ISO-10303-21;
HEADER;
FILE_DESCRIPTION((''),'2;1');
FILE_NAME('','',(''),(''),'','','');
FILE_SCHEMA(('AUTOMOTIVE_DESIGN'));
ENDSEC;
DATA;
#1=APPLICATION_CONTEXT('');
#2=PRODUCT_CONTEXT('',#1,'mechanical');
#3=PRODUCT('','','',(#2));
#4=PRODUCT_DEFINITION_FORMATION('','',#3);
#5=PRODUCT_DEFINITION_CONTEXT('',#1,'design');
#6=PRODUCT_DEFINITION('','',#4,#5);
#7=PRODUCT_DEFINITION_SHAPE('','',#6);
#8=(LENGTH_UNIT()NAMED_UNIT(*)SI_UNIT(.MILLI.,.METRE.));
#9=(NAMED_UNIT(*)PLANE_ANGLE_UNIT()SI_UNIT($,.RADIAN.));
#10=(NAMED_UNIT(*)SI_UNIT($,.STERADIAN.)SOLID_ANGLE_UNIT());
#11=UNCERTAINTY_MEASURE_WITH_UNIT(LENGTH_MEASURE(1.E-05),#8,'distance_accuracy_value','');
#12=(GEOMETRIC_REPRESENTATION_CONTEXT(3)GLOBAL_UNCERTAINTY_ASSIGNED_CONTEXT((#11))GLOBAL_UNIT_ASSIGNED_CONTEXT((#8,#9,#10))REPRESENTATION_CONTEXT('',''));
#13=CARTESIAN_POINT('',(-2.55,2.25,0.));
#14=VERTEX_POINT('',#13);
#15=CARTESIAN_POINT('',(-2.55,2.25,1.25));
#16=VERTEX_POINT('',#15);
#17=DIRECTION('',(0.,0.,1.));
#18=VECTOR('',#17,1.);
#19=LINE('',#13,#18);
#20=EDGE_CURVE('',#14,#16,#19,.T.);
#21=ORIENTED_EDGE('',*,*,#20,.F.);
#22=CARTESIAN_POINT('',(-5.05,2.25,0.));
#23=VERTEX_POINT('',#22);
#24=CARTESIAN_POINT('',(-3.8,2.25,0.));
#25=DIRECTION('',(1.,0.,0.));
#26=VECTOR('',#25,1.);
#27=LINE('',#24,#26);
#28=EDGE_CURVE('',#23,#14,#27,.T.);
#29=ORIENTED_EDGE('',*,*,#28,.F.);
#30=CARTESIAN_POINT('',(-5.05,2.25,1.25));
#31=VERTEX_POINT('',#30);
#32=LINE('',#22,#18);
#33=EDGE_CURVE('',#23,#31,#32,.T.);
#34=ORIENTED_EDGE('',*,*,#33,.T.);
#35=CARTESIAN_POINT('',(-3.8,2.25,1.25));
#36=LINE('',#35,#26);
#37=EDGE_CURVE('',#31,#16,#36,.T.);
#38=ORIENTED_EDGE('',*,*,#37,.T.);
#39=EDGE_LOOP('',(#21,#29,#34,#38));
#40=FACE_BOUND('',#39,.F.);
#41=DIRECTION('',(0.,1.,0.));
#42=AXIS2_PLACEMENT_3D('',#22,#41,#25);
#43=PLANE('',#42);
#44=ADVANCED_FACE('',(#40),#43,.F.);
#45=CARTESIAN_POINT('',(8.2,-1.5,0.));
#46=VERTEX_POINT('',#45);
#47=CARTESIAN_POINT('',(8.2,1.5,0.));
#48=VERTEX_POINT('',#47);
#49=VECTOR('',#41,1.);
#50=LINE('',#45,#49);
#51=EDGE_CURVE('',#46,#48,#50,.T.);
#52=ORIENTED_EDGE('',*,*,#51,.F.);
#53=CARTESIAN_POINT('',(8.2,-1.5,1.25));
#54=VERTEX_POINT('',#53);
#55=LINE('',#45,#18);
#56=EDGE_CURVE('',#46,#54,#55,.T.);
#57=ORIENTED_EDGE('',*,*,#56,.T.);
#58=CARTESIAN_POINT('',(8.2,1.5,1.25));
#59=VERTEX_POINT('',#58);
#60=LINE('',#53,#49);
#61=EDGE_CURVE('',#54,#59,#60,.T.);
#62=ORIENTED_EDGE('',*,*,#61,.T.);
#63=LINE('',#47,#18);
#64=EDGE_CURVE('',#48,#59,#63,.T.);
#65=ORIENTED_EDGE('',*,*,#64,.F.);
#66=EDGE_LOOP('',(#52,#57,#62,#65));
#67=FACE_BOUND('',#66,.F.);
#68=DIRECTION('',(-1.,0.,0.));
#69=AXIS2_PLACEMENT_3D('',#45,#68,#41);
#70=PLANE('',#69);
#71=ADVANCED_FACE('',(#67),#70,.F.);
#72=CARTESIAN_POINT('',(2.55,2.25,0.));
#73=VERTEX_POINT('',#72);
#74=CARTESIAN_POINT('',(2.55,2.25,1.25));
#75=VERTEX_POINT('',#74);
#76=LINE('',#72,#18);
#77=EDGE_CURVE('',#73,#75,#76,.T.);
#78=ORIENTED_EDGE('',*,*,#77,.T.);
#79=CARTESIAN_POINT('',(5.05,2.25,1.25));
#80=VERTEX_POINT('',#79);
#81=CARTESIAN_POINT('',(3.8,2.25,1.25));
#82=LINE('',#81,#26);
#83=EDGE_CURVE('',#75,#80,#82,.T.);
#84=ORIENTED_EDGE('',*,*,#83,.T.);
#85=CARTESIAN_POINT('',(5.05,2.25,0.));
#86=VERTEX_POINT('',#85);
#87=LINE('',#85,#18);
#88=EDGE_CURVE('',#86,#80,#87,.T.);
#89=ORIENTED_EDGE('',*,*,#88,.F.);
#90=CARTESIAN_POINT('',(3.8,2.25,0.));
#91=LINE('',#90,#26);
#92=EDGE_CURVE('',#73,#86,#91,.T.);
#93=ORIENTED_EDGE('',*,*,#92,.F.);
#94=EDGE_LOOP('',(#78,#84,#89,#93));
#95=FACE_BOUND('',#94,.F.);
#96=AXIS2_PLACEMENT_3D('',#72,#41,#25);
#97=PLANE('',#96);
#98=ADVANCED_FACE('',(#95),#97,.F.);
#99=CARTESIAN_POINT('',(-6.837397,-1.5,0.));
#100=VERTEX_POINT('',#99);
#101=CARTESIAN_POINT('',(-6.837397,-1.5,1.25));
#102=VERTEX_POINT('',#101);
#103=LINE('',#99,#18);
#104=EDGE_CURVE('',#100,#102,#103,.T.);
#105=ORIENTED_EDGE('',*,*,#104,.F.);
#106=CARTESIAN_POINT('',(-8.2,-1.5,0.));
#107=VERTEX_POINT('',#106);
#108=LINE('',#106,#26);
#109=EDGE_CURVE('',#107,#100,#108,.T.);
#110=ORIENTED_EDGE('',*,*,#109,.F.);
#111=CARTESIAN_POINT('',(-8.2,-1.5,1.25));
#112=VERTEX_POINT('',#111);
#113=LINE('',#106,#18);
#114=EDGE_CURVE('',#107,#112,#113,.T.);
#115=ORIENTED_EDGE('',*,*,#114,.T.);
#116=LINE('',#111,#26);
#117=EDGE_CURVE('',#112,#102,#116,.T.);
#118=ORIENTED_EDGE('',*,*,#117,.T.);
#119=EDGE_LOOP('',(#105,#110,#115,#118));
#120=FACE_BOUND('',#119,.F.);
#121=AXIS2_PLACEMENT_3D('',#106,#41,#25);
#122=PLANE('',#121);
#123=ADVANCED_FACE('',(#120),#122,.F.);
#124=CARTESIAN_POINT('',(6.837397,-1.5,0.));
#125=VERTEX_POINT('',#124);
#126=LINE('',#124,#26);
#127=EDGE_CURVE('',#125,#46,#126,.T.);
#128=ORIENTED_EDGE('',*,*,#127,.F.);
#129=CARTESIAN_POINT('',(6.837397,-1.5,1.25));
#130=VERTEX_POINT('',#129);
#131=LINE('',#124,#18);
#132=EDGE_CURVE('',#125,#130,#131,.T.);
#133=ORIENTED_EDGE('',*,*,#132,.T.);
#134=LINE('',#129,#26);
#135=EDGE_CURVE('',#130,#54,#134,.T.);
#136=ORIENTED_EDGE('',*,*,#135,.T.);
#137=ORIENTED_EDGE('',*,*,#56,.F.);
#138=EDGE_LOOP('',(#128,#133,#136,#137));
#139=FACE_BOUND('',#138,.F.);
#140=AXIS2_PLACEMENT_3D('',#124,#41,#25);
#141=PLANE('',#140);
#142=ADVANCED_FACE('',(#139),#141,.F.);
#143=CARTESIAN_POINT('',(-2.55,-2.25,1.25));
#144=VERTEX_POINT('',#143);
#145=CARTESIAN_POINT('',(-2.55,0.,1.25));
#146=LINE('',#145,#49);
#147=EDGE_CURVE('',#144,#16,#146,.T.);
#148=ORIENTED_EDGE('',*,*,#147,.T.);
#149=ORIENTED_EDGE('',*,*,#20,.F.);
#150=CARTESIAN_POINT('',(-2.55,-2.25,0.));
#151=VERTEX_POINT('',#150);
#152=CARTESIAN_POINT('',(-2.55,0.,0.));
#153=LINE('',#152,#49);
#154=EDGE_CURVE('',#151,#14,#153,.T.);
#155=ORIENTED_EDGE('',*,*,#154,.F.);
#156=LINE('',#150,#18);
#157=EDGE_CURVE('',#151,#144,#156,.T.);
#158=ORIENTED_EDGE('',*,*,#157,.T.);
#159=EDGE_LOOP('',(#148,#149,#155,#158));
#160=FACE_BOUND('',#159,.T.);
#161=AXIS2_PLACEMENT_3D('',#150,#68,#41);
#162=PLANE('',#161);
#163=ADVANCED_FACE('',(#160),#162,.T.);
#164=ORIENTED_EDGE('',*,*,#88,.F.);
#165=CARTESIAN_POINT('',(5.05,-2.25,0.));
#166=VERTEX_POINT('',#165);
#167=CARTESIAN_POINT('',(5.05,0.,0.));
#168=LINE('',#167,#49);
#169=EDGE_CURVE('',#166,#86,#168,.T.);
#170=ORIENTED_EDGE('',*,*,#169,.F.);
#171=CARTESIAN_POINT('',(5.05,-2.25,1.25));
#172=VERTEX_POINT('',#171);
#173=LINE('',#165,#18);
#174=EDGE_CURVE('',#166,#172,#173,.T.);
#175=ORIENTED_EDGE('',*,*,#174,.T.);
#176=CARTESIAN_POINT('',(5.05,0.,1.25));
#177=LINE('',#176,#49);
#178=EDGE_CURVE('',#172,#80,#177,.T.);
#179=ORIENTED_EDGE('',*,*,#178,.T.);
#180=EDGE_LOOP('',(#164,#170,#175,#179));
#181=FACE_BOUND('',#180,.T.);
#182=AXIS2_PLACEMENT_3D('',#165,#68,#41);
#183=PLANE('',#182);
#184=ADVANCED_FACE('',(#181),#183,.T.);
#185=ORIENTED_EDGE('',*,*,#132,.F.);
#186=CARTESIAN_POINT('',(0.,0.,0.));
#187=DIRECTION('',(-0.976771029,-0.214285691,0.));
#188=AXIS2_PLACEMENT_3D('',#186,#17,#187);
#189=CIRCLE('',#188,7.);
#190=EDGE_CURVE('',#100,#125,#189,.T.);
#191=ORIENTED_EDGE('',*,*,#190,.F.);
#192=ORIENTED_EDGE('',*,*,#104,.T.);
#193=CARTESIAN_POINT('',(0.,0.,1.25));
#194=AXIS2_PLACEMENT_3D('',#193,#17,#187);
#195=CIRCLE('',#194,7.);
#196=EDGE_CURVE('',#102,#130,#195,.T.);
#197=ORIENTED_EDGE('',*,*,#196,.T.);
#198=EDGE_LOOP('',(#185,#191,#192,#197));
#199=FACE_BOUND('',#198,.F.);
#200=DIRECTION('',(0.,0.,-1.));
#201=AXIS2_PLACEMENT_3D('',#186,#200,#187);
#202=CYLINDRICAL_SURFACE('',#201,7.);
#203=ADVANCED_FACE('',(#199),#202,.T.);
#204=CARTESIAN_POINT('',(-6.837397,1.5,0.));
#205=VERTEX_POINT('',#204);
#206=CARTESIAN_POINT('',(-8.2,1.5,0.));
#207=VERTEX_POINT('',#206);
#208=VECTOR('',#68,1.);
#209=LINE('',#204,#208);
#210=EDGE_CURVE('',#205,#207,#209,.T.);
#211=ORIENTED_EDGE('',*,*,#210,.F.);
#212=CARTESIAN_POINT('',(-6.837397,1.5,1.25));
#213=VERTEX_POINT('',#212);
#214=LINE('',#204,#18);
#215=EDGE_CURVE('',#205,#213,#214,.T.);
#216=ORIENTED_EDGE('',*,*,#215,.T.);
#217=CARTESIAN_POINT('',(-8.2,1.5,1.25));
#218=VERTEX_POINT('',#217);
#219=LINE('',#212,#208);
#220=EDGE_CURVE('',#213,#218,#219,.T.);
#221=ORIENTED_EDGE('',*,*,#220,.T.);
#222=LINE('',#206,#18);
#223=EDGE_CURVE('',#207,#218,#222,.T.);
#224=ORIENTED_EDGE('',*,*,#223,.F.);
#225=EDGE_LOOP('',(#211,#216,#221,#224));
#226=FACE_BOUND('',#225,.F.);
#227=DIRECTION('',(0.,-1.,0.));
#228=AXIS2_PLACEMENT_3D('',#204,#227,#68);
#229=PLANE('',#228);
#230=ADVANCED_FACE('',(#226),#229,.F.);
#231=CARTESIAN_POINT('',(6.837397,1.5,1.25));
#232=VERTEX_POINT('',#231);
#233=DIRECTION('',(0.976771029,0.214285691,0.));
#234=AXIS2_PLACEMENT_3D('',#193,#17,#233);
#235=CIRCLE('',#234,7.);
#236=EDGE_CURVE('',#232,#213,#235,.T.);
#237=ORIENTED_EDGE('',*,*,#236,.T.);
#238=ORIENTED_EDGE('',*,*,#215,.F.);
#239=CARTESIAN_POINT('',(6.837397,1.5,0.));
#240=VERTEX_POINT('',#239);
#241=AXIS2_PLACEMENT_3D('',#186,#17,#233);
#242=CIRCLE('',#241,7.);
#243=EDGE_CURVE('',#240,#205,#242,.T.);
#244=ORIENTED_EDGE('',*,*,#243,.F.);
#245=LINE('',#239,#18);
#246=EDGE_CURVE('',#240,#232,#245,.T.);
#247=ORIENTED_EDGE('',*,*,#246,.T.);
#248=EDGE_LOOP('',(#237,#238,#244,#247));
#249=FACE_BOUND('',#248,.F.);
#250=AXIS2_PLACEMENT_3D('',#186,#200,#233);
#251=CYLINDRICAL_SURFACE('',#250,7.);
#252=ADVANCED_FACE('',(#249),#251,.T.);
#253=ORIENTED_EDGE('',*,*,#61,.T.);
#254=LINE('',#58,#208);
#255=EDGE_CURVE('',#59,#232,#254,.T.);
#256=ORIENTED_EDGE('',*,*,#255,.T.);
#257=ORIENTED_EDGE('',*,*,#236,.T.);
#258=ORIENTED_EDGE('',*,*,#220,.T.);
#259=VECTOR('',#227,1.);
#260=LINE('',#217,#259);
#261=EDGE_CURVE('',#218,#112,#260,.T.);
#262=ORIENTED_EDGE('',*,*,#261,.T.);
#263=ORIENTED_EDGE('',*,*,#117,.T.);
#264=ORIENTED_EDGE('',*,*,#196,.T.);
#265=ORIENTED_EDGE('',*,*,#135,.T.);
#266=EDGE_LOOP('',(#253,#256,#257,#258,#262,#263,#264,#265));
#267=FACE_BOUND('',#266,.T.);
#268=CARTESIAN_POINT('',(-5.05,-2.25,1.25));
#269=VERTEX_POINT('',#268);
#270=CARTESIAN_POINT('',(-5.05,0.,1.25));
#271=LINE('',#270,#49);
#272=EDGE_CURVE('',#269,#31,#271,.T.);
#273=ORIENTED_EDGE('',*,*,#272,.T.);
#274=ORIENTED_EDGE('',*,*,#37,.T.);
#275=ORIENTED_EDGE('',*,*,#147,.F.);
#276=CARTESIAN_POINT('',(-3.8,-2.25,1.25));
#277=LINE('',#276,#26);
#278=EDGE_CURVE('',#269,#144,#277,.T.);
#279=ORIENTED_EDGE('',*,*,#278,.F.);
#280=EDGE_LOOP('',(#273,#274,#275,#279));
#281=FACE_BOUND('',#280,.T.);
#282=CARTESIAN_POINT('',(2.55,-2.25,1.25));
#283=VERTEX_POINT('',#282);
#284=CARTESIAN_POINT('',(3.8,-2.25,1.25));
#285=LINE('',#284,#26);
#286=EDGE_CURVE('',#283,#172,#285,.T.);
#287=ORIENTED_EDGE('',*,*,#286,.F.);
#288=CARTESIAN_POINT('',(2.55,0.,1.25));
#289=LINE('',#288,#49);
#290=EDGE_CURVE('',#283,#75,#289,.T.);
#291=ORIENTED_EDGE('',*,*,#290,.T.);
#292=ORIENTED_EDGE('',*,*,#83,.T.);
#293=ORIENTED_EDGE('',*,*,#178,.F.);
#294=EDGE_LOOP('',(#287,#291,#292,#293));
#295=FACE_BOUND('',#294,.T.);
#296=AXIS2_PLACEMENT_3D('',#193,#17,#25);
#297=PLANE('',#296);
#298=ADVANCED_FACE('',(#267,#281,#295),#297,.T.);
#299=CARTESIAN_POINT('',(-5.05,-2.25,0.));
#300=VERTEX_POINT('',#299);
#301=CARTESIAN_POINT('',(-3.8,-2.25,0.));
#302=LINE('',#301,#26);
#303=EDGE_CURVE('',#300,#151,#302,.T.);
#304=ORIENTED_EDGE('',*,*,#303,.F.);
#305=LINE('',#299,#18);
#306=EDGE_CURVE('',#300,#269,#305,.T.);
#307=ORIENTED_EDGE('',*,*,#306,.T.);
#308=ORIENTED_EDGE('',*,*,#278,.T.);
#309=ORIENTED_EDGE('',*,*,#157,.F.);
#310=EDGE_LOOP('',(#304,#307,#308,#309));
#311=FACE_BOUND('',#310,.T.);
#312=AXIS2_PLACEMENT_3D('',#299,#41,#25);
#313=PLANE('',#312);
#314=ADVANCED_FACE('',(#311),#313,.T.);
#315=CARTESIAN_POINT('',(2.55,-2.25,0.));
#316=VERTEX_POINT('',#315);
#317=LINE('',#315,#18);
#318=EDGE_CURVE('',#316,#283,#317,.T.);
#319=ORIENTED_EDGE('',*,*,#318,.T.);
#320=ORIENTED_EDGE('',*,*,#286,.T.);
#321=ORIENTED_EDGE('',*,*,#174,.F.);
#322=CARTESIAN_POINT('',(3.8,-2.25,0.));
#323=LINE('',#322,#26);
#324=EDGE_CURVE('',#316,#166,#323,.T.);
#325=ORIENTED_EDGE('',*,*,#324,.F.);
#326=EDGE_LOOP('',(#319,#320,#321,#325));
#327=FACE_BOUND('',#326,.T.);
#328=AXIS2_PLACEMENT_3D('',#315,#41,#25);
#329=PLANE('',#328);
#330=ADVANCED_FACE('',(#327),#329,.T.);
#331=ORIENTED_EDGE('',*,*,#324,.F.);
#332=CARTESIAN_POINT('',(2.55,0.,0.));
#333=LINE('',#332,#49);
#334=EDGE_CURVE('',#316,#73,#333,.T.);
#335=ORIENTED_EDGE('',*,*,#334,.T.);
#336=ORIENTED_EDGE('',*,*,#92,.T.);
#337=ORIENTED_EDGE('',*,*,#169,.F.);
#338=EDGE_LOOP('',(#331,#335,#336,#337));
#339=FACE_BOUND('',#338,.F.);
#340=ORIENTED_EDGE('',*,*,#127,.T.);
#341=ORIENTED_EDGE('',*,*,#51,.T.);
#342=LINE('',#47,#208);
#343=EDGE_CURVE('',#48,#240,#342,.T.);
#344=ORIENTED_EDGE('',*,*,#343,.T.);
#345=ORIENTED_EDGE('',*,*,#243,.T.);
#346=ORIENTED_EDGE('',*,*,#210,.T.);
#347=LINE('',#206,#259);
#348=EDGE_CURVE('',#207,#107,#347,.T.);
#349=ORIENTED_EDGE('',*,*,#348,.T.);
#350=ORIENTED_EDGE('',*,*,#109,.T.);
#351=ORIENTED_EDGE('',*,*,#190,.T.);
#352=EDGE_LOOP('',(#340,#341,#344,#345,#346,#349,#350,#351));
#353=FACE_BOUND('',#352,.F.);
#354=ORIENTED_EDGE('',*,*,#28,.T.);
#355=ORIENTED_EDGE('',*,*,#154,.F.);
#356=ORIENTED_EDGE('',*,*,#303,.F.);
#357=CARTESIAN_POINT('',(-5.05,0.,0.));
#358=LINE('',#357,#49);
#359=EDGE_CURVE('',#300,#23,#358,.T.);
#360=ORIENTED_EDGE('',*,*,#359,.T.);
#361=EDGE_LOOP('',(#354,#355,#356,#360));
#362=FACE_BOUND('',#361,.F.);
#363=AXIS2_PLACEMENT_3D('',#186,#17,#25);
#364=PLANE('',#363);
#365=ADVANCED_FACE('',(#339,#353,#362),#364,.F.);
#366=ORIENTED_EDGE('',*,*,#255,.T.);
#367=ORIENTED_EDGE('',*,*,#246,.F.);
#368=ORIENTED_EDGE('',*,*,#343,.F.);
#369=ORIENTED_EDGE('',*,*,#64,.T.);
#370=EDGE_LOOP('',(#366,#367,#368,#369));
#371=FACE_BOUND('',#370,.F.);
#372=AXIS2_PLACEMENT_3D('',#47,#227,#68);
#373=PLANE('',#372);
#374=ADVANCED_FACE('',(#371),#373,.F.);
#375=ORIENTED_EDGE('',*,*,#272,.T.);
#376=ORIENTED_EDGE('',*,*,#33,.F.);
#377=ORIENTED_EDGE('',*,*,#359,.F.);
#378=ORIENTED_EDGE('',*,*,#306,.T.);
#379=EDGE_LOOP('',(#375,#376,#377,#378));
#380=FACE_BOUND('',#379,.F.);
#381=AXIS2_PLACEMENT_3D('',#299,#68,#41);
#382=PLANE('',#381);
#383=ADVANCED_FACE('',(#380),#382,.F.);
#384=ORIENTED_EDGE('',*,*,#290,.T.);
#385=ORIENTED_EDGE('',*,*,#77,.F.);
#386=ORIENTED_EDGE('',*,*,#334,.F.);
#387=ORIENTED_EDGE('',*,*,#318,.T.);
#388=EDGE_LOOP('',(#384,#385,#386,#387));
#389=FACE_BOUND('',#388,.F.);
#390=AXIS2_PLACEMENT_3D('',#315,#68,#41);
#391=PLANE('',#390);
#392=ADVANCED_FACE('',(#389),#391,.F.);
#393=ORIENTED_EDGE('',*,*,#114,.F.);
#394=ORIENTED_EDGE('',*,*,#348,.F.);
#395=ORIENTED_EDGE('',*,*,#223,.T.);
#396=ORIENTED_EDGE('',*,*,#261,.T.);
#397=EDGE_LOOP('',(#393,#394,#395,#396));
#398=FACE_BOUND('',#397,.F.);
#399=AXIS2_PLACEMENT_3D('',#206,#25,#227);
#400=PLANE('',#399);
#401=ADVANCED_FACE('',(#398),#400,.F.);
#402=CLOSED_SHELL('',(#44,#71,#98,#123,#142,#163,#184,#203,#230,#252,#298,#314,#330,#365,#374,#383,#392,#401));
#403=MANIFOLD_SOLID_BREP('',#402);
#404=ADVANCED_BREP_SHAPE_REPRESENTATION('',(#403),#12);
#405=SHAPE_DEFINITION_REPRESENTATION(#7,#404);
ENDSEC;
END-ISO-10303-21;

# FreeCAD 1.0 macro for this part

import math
import FreeCAD as App
import Part
import Sketcher
Q = App.Units.Quantity

doc = App.newDocument("Part")
body = doc.addObject("PartDesign::Body", "Body")

# Sketch on XY plane
sketch1 = doc.addObject("Sketcher::SketchObject", "Sketch")
body.addObject(sketch1)
sketch1.AttachmentSupport = (doc.XY_Plane, [""])
sketch1.MapMode = "FlatFace"
sketch1.addGeometry([
    Part.LineSegment(App.Vector(8.2, 1.5, 0), App.Vector(6.8, 1.5, 0)),  # 0
    Part.ArcOfCircle(Part.Circle(App.Vector(0, 0, 0), App.Vector(0, 0, 1), 7), math.radians(12), math.radians(168)),  # 1
    Part.LineSegment(App.Vector(-6.8, 1.5, 0), App.Vector(-8.2, 1.5, 0)),  # 2
    Part.LineSegment(App.Vector(-8.2, 1.5, 0), App.Vector(-8.2, -1.5, 0)),  # 3
    Part.LineSegment(App.Vector(-8.2, -1.5, 0), App.Vector(-6.8, -1.5, 0)),  # 4
    Part.ArcOfCircle(Part.Circle(App.Vector(0, 0, 0), App.Vector(0, 0, 1), 7), math.radians(-168), math.radians(-12)),  # 5
    Part.LineSegment(App.Vector(6.8, -1.5, 0), App.Vector(8.2, -1.5, 0)),  # 6
    Part.LineSegment(App.Vector(8.2, -1.5, 0), App.Vector(8.2, 1.5, 0)),  # 7
    Part.LineSegment(App.Vector(-2.5, -2.2, 0), App.Vector(-5, -2.2, 0)),  # 8
    Part.LineSegment(App.Vector(-5, -2.2, 0), App.Vector(-5, 2.2, 0)),  # 9
    Part.LineSegment(App.Vector(-5, 2.2, 0), App.Vector(-2.5, 2.2, 0)),  # 10
    Part.LineSegment(App.Vector(-2.5, 2.2, 0), App.Vector(-2.5, -2.2, 0)),  # 11
    Part.LineSegment(App.Vector(5, -2.2, 0), App.Vector(2.5, -2.2, 0)),  # 12
    Part.LineSegment(App.Vector(2.5, -2.2, 0), App.Vector(2.5, 2.2, 0)),  # 13
    Part.LineSegment(App.Vector(2.5, 2.2, 0), App.Vector(5, 2.2, 0)),  # 14
    Part.LineSegment(App.Vector(5, 2.2, 0), App.Vector(5, -2.2, 0)),  # 15
], False)
sketch1.addConstraint([
    Sketcher.Constraint("Coincident", 0, 2, 1, 1),
    Sketcher.Constraint("Coincident", 1, 2, 2, 1),
    Sketcher.Constraint("Coincident", 2, 2, 3, 1),
    Sketcher.Constraint("Coincident", 3, 2, 4, 1),
    Sketcher.Constraint("Coincident", 4, 2, 5, 1),
    Sketcher.Constraint("Coincident", 5, 2, 6, 1),
    Sketcher.Constraint("Coincident", 6, 2, 7, 1),
    Sketcher.Constraint("Coincident", 7, 2, 0, 1),
    Sketcher.Constraint("Coincident", 8, 2, 9, 1),
    Sketcher.Constraint("Coincident", 9, 2, 10, 1),
    Sketcher.Constraint("Coincident", 10, 2, 11, 1),
    Sketcher.Constraint("Coincident", 11, 2, 8, 1),
    Sketcher.Constraint("Coincident", 12, 2, 13, 1),
    Sketcher.Constraint("Coincident", 13, 2, 14, 1),
    Sketcher.Constraint("Coincident", 14, 2, 15, 1),
    Sketcher.Constraint("Coincident", 15, 2, 12, 1),
    Sketcher.Constraint("Horizontal", 0),
    Sketcher.Constraint("Horizontal", 2),
    Sketcher.Constraint("Vertical", 3),
    Sketcher.Constraint("Horizontal", 4),
    Sketcher.Constraint("Horizontal", 6),
    Sketcher.Constraint("Vertical", 7),
    Sketcher.Constraint("Horizontal", 8),
    Sketcher.Constraint("Vertical", 9),
    Sketcher.Constraint("Horizontal", 10),
    Sketcher.Constraint("Vertical", 11),
    Sketcher.Constraint("Horizontal", 12),
    Sketcher.Constraint("Vertical", 13),
    Sketcher.Constraint("Horizontal", 14),
    Sketcher.Constraint("Vertical", 15),
    Sketcher.Constraint("Coincident", 1, 3, -1, 1),
    Sketcher.Constraint("Coincident", 5, 3, -1, 1),
    Sketcher.Constraint("Equal", 1, 5),
    Sketcher.Constraint("Symmetric", 2, 2, 6, 2, -1, 1),
    Sketcher.Constraint("Symmetric", 10, 2, 12, 2, -1, 1),
    Sketcher.Constraint("Symmetric", 8, 2, 14, 2, -1, 1),
    Sketcher.Constraint("Horizontal", 0, 2, 1, 2),
    Sketcher.Constraint("Horizontal", 4, 2, 5, 2),
    Sketcher.Constraint("Horizontal", 11, 2, 12, 2),
    Sketcher.Constraint("Radius", 1, Q("7 mm")),
    Sketcher.Constraint("DistanceY", 3, 2, 3, 1, Q("3 mm")),
    Sketcher.Constraint("DistanceX", 8, 2, 8, 1, Q("2.5 mm")),
    Sketcher.Constraint("DistanceY", 9, 1, 9, 2, Q("4.5 mm")),
    Sketcher.Constraint("DistanceX", 2, 2, -1, 1, Q("8.2 mm")),
    Sketcher.Constraint("DistanceX", 11, 2, 12, 2, Q("5.1 mm")),
])
pad1 = doc.addObject("PartDesign::Pad", "Pad")
body.addObject(pad1)
pad1.Profile = sketch1
pad1.Length = 1.25

doc.recompute()
